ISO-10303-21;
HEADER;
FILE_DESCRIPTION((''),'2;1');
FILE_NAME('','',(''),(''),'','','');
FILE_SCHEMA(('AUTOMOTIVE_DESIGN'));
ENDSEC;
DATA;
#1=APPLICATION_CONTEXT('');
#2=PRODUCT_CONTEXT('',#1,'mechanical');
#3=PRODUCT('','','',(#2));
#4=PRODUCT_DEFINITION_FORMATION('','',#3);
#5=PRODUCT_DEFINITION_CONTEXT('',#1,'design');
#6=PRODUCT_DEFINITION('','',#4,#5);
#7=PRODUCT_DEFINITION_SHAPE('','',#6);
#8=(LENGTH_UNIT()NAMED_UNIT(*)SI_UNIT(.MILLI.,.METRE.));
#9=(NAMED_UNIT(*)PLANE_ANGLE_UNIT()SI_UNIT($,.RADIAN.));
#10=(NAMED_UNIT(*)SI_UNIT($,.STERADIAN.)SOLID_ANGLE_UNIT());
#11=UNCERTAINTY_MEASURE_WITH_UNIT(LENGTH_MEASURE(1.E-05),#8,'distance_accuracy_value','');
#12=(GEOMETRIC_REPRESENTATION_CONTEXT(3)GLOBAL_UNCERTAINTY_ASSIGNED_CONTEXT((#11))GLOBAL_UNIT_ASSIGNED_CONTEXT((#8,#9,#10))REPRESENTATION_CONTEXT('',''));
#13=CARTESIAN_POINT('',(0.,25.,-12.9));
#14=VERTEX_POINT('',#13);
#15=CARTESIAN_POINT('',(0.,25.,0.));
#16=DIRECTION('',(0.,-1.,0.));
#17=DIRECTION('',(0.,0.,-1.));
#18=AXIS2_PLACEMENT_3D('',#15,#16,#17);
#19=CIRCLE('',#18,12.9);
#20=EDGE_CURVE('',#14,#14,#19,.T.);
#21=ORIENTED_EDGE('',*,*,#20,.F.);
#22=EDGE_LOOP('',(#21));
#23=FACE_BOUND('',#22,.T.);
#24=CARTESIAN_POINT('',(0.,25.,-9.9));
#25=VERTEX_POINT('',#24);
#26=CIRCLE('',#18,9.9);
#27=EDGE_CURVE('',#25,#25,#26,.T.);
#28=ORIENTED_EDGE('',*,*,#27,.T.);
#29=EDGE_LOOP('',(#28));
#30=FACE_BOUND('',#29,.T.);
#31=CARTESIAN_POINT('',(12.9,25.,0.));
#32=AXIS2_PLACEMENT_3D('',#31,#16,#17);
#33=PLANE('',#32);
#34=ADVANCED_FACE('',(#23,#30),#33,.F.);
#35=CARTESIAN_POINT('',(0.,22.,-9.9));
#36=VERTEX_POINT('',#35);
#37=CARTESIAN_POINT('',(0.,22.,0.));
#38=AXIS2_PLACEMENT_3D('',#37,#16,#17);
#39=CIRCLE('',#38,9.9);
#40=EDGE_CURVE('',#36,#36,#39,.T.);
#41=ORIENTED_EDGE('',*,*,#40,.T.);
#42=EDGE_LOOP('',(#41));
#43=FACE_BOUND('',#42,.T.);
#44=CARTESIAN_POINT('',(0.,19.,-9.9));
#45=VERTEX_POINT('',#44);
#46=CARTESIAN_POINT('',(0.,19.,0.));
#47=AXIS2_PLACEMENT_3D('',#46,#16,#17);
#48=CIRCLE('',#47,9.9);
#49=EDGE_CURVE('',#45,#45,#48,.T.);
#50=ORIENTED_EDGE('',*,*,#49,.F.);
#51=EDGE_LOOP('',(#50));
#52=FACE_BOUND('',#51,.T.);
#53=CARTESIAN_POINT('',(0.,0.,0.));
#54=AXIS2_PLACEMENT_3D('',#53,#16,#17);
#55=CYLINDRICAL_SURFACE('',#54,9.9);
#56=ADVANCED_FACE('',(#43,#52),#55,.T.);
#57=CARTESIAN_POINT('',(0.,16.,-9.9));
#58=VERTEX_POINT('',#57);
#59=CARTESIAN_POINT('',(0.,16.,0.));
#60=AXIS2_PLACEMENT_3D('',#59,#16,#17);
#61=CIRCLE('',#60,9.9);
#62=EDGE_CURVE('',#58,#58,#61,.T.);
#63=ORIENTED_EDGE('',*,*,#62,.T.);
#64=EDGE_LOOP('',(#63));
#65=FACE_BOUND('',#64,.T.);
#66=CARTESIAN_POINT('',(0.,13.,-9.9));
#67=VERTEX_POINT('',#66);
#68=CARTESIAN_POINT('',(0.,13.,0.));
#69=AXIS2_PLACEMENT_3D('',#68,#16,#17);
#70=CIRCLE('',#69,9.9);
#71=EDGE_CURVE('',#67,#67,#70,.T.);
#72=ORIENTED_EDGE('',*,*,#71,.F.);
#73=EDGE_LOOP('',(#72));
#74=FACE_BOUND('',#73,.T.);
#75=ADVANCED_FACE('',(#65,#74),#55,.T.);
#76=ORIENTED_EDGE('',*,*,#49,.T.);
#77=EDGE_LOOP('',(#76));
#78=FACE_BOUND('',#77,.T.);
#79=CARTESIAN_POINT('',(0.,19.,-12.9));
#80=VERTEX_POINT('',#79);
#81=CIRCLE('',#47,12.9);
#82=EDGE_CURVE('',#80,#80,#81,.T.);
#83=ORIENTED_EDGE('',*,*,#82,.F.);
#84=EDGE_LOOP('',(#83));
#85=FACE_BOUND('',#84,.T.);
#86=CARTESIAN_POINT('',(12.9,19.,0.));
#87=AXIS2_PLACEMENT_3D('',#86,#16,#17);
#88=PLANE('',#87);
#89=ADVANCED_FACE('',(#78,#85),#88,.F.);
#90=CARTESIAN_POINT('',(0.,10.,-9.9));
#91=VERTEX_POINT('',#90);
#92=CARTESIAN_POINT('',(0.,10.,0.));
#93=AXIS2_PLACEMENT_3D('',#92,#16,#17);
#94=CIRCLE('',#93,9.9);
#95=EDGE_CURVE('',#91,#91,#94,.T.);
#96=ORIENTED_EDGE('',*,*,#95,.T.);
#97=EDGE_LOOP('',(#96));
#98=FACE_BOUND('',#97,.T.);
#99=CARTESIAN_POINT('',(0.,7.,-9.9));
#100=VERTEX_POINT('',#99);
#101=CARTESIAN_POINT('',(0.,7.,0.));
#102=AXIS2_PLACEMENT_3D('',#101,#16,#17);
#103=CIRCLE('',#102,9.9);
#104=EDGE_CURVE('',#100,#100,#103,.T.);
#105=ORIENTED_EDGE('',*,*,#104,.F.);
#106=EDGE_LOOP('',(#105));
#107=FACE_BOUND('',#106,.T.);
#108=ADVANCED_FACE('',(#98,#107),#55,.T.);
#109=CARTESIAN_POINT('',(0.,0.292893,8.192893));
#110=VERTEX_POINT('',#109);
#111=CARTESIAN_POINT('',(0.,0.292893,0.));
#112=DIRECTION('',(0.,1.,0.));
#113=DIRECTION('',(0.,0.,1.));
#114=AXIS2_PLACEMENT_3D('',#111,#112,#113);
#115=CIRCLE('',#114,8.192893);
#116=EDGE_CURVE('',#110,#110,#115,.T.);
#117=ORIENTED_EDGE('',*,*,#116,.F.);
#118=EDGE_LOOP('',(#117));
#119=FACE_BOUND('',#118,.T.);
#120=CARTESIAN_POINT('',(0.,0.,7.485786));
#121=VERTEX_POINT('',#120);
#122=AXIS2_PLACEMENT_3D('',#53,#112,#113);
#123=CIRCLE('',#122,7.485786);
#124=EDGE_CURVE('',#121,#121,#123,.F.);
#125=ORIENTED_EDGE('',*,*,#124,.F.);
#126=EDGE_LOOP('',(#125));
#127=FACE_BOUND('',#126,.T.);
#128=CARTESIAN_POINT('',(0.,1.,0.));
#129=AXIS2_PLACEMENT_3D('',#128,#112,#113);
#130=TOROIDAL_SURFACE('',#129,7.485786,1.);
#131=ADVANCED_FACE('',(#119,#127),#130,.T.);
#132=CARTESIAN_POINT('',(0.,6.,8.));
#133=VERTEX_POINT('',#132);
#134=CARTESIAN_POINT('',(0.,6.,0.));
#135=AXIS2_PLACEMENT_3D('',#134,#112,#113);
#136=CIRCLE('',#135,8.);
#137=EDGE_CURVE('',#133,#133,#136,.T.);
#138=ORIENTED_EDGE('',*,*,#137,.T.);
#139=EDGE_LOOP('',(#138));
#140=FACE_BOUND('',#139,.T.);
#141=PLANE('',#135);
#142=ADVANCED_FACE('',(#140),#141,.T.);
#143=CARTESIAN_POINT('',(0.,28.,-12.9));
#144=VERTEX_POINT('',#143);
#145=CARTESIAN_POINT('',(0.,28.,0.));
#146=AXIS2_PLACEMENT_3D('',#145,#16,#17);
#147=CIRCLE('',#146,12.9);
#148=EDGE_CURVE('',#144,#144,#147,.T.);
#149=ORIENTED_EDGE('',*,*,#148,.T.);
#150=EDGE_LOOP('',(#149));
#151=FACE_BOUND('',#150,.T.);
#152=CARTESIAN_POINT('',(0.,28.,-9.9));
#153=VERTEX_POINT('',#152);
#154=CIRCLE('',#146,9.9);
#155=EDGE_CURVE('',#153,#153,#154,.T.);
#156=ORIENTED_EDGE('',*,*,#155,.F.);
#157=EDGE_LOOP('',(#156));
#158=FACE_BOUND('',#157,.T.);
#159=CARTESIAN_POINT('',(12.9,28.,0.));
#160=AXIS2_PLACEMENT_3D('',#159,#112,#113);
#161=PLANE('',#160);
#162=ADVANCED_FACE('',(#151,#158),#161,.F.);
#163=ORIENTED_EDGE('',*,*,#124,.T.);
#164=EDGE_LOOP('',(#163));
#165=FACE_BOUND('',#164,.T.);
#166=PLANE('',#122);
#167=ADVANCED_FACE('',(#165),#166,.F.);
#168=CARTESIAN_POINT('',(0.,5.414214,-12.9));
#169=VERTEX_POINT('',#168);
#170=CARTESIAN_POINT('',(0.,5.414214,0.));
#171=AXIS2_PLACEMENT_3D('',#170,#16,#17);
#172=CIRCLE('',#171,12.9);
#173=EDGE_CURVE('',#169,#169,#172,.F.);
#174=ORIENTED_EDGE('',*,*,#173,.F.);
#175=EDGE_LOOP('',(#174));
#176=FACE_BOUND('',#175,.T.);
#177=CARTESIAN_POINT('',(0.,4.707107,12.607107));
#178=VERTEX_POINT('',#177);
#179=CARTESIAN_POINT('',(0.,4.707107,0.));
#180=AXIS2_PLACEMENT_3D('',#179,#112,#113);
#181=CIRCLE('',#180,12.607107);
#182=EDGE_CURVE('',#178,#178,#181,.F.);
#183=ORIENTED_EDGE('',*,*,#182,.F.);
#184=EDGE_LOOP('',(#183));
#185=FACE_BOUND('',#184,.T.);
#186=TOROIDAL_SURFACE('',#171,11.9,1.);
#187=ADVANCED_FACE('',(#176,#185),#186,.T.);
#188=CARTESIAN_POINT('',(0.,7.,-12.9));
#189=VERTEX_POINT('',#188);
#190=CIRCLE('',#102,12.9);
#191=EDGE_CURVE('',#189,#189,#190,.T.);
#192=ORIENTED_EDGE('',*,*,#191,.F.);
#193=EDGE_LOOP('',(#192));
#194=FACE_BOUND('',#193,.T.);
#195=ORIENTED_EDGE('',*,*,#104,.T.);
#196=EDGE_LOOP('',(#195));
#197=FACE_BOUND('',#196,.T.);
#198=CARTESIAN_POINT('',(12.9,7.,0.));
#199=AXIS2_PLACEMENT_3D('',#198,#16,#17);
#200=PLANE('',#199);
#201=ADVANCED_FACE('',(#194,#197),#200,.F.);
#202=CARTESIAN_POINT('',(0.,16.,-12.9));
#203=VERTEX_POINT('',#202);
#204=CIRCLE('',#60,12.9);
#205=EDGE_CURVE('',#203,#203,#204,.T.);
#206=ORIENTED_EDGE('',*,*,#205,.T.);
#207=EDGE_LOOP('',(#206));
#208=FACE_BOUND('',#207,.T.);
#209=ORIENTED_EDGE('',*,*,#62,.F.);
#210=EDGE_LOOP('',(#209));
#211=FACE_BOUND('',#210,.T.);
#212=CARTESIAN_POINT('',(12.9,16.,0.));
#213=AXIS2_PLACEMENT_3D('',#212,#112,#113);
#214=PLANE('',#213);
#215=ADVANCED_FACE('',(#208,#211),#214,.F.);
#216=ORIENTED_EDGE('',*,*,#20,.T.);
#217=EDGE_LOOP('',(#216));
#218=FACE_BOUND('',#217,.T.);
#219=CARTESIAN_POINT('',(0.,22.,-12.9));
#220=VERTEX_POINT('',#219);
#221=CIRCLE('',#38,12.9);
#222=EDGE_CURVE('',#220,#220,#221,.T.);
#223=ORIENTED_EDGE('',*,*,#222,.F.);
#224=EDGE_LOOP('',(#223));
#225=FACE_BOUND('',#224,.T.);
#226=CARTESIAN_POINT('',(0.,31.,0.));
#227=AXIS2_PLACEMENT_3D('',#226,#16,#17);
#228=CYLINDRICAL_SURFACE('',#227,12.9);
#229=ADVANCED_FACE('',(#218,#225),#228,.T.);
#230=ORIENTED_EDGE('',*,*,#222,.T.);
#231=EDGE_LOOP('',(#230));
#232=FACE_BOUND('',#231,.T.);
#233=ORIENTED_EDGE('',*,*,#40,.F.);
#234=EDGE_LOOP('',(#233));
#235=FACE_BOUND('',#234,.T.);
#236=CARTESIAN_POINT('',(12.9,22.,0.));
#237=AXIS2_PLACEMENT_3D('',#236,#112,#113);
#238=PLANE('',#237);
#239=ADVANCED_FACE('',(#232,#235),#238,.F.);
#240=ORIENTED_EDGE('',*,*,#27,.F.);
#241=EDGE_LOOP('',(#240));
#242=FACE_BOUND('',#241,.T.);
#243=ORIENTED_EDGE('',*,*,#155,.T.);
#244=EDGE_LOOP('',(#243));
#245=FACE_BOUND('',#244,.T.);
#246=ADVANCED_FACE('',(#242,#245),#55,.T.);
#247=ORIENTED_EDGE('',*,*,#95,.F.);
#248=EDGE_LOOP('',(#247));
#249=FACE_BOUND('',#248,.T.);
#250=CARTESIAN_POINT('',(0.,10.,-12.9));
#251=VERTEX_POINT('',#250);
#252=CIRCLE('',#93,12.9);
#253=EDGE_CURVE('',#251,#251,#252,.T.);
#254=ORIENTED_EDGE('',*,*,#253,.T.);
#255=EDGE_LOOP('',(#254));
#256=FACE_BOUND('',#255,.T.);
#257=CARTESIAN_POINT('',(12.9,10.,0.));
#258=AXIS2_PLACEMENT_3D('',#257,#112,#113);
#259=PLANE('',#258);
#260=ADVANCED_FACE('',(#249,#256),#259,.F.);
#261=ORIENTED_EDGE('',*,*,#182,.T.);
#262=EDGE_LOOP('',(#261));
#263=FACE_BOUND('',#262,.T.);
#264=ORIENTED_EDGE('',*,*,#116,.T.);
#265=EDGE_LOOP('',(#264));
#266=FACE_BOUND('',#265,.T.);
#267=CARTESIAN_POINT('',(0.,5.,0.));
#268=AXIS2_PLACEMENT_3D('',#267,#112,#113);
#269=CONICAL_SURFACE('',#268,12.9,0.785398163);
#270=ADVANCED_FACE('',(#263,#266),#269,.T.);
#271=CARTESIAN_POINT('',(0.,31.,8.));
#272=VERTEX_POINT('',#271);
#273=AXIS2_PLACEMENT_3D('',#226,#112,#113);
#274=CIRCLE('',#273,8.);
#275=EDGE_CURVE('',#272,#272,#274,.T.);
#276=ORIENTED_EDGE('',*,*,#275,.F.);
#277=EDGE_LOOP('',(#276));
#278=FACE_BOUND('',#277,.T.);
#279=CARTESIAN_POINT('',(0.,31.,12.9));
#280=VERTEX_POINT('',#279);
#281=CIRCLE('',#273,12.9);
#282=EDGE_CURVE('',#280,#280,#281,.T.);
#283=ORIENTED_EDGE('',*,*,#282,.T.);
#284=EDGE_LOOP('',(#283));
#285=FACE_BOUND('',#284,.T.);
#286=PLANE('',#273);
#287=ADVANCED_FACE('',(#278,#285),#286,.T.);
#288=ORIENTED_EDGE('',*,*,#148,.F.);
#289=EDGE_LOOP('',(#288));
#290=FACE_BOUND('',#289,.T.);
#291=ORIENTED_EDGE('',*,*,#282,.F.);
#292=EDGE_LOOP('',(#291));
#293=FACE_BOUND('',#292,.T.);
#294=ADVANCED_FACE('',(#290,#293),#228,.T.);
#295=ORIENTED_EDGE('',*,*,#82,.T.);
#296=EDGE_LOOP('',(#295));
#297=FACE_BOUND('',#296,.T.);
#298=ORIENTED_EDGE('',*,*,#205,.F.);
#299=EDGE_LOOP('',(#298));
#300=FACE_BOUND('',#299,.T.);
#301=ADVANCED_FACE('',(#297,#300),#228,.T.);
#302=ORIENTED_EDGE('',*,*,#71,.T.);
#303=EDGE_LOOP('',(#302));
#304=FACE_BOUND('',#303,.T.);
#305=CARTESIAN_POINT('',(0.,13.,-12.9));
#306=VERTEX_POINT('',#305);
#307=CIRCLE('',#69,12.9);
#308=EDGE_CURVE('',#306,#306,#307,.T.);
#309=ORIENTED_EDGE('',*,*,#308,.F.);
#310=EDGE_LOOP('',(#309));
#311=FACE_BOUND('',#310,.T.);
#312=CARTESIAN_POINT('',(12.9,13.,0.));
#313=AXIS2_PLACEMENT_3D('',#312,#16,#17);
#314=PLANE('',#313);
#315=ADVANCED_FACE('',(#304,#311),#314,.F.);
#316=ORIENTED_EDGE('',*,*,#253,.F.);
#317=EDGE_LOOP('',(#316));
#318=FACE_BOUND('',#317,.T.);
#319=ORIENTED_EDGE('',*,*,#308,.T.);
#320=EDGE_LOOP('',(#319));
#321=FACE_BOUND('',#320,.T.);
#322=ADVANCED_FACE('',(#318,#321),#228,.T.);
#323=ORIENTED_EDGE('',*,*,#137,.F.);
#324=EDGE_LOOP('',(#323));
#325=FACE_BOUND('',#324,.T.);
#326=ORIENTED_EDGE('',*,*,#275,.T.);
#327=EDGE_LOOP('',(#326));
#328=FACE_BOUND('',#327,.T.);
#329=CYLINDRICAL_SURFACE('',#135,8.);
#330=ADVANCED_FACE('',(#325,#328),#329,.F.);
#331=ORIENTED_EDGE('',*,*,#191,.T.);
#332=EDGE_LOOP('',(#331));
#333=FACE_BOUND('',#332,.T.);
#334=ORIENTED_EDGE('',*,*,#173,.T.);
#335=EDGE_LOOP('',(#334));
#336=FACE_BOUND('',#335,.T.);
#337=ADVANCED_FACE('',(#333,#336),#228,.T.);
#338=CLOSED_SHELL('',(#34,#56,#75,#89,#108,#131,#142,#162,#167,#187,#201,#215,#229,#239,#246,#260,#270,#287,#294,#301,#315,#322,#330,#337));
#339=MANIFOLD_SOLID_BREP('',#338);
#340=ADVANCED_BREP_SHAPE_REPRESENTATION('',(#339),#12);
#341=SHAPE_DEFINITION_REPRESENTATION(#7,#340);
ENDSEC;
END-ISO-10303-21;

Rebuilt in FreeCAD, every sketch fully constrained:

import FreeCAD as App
import Part
import Sketcher
from FreeCAD import Vector
Q = App.Units.Quantity


def edges_at(feature, points):
    """Names of the edges that pass closest to the given points."""
    edges = feature.Shape.Edges
    near = lambda p: min(range(len(edges)), key=lambda i: edges[i].distToShape(Part.Vertex(*p))[0])
    return sorted({f"Edge{near(p) + 1}" for p in points})

doc = App.newDocument("Part")
body = doc.addObject("PartDesign::Body", "Body")

sketch1 = body.newObject("Sketcher::SketchObject", "Sketch")
sketch1.AttachmentSupport = (doc.getObject("XZ_Plane"), [""])
sketch1.MapMode = "FlatFace"
sketch1.addGeometry(Part.Circle(Vector(0, 0, 0), Vector(0, 0, 1), 12.9), False)
sketch1.addConstraint([
    Sketcher.Constraint("Coincident", 0, 3, -1, 1),
    Sketcher.Constraint("Diameter", 0, Q("25.8 mm")),
])
pad1 = body.newObject("PartDesign::Pad", "Pad")
pad1.Profile = sketch1
pad1.Length = 31
pad1.Reversed = True

sketch2 = body.newObject("Sketcher::SketchObject", "Sketch001")
sketch2.AttachmentSupport = (doc.getObject("XZ_Plane"), [""])
sketch2.MapMode = "FlatFace"
sketch2.AttachmentOffset = App.Placement(Vector(0, 0, -31), App.Rotation())
sketch2.addGeometry(Part.Circle(Vector(0, 0, 0), Vector(0, 0, 1), 8), False)
sketch2.addConstraint([
    Sketcher.Constraint("Coincident", 0, 3, -1, 1),
    Sketcher.Constraint("Diameter", 0, Q("16 mm")),
])
pocket1 = body.newObject("PartDesign::Pocket", "Pocket")
pocket1.Profile = sketch2
pocket1.Length = 25
pocket1.Reversed = True
doc.recompute()

chamfer = body.newObject("PartDesign::Chamfer", "Chamfer")
chamfer.Base = (pocket1, edges_at(pocket1, [(0, 0, -12.9)]))
chamfer.Size = 5
doc.recompute()

fillet = body.newObject("PartDesign::Fillet", "Fillet")
fillet.Base = (chamfer, edges_at(chamfer, [(0, 0, -7.9), (0, 5, -12.9)]))
fillet.Radius = 1

sketch3 = body.newObject("Sketcher::SketchObject", "Sketch002")
sketch3.AttachmentSupport = (doc.getObject("XY_Plane"), [""])
sketch3.MapMode = "FlatFace"
sketch3.addGeometry([
    Part.LineSegment(Vector(9.9, 28, 0), Vector(9.9, 25, 0)),
    Part.LineSegment(Vector(9.9, 25, 0), Vector(12.9, 25, 0)),
    Part.LineSegment(Vector(12.9, 25, 0), Vector(12.9, 28, 0)),
    Part.LineSegment(Vector(12.9, 28, 0), Vector(9.9, 28, 0)),
    Part.LineSegment(Vector(9.9, 22, 0), Vector(9.9, 19, 0)),
    Part.LineSegment(Vector(9.9, 19, 0), Vector(12.9, 19, 0)),
    Part.LineSegment(Vector(12.9, 19, 0), Vector(12.9, 22, 0)),
    Part.LineSegment(Vector(12.9, 22, 0), Vector(9.9, 22, 0)),
    Part.LineSegment(Vector(9.9, 16, 0), Vector(9.9, 13, 0)),
    Part.LineSegment(Vector(9.9, 13, 0), Vector(12.9, 13, 0)),
    Part.LineSegment(Vector(12.9, 13, 0), Vector(12.9, 16, 0)),
    Part.LineSegment(Vector(12.9, 16, 0), Vector(9.9, 16, 0)),
    Part.LineSegment(Vector(9.9, 10, 0), Vector(9.9, 7, 0)),
    Part.LineSegment(Vector(9.9, 7, 0), Vector(12.9, 7, 0)),
    Part.LineSegment(Vector(12.9, 7, 0), Vector(12.9, 10, 0)),
    Part.LineSegment(Vector(12.9, 10, 0), Vector(9.9, 10, 0)),
], False)
sketch3.addConstraint([
    Sketcher.Constraint("Coincident", 0, 2, 1, 1),
    Sketcher.Constraint("Coincident", 1, 2, 2, 1),
    Sketcher.Constraint("Coincident", 2, 2, 3, 1),
    Sketcher.Constraint("Coincident", 3, 2, 0, 1),
    Sketcher.Constraint("Coincident", 4, 2, 5, 1),
    Sketcher.Constraint("Coincident", 5, 2, 6, 1),
    Sketcher.Constraint("Coincident", 6, 2, 7, 1),
    Sketcher.Constraint("Coincident", 7, 2, 4, 1),
    Sketcher.Constraint("Coincident", 8, 2, 9, 1),
    Sketcher.Constraint("Coincident", 9, 2, 10, 1),
    Sketcher.Constraint("Coincident", 10, 2, 11, 1),
    Sketcher.Constraint("Coincident", 11, 2, 8, 1),
    Sketcher.Constraint("Coincident", 12, 2, 13, 1),
    Sketcher.Constraint("Coincident", 13, 2, 14, 1),
    Sketcher.Constraint("Coincident", 14, 2, 15, 1),
    Sketcher.Constraint("Coincident", 15, 2, 12, 1),
    Sketcher.Constraint("Vertical", 0),
    Sketcher.Constraint("Horizontal", 1),
    Sketcher.Constraint("Vertical", 2),
    Sketcher.Constraint("Horizontal", 3),
    Sketcher.Constraint("Vertical", 4),
    Sketcher.Constraint("Horizontal", 5),
    Sketcher.Constraint("Vertical", 6),
    Sketcher.Constraint("Horizontal", 7),
    Sketcher.Constraint("Vertical", 8),
    Sketcher.Constraint("Horizontal", 9),
    Sketcher.Constraint("Vertical", 10),
    Sketcher.Constraint("Horizontal", 11),
    Sketcher.Constraint("Vertical", 12),
    Sketcher.Constraint("Horizontal", 13),
    Sketcher.Constraint("Vertical", 14),
    Sketcher.Constraint("Horizontal", 15),
    Sketcher.Constraint("Vertical", 3, 2, 4, 2),
    Sketcher.Constraint("Vertical", 2, 2, 5, 2),
    Sketcher.Constraint("Vertical", 7, 2, 8, 2),
    Sketcher.Constraint("Vertical", 6, 2, 9, 2),
    Sketcher.Constraint("Vertical", 11, 2, 12, 2),
    Sketcher.Constraint("Vertical", 10, 2, 13, 2),
    Sketcher.Constraint("Equal", 15, 0),
    Sketcher.Constraint("Equal", 2, 4),
    Sketcher.Constraint("Equal", 6, 8),
    Sketcher.Constraint("Equal", 10, 12),
    Sketcher.Constraint("DistanceX", 1, 1, 1, 2, Q("3 mm")),
    Sketcher.Constraint("DistanceY", -1, 1, 0, 2, Q("25 mm")),
    Sketcher.Constraint("DistanceY", -1, 1, 4, 2, Q("19 mm")),
    Sketcher.Constraint("DistanceY", -1, 1, 8, 2, Q("13 mm")),
    Sketcher.Constraint("DistanceY", -1, 1, 12, 2, Q("7 mm")),
    Sketcher.Constraint("DistanceX", -1, 1, 0, 2, Q("9.9 mm")),
])
groove = body.newObject("PartDesign::Groove", "Groove")
groove.Profile = sketch3
groove.ReferenceAxis = (sketch3, ["V_Axis"])
groove.Angle = 360

doc.recompute()
